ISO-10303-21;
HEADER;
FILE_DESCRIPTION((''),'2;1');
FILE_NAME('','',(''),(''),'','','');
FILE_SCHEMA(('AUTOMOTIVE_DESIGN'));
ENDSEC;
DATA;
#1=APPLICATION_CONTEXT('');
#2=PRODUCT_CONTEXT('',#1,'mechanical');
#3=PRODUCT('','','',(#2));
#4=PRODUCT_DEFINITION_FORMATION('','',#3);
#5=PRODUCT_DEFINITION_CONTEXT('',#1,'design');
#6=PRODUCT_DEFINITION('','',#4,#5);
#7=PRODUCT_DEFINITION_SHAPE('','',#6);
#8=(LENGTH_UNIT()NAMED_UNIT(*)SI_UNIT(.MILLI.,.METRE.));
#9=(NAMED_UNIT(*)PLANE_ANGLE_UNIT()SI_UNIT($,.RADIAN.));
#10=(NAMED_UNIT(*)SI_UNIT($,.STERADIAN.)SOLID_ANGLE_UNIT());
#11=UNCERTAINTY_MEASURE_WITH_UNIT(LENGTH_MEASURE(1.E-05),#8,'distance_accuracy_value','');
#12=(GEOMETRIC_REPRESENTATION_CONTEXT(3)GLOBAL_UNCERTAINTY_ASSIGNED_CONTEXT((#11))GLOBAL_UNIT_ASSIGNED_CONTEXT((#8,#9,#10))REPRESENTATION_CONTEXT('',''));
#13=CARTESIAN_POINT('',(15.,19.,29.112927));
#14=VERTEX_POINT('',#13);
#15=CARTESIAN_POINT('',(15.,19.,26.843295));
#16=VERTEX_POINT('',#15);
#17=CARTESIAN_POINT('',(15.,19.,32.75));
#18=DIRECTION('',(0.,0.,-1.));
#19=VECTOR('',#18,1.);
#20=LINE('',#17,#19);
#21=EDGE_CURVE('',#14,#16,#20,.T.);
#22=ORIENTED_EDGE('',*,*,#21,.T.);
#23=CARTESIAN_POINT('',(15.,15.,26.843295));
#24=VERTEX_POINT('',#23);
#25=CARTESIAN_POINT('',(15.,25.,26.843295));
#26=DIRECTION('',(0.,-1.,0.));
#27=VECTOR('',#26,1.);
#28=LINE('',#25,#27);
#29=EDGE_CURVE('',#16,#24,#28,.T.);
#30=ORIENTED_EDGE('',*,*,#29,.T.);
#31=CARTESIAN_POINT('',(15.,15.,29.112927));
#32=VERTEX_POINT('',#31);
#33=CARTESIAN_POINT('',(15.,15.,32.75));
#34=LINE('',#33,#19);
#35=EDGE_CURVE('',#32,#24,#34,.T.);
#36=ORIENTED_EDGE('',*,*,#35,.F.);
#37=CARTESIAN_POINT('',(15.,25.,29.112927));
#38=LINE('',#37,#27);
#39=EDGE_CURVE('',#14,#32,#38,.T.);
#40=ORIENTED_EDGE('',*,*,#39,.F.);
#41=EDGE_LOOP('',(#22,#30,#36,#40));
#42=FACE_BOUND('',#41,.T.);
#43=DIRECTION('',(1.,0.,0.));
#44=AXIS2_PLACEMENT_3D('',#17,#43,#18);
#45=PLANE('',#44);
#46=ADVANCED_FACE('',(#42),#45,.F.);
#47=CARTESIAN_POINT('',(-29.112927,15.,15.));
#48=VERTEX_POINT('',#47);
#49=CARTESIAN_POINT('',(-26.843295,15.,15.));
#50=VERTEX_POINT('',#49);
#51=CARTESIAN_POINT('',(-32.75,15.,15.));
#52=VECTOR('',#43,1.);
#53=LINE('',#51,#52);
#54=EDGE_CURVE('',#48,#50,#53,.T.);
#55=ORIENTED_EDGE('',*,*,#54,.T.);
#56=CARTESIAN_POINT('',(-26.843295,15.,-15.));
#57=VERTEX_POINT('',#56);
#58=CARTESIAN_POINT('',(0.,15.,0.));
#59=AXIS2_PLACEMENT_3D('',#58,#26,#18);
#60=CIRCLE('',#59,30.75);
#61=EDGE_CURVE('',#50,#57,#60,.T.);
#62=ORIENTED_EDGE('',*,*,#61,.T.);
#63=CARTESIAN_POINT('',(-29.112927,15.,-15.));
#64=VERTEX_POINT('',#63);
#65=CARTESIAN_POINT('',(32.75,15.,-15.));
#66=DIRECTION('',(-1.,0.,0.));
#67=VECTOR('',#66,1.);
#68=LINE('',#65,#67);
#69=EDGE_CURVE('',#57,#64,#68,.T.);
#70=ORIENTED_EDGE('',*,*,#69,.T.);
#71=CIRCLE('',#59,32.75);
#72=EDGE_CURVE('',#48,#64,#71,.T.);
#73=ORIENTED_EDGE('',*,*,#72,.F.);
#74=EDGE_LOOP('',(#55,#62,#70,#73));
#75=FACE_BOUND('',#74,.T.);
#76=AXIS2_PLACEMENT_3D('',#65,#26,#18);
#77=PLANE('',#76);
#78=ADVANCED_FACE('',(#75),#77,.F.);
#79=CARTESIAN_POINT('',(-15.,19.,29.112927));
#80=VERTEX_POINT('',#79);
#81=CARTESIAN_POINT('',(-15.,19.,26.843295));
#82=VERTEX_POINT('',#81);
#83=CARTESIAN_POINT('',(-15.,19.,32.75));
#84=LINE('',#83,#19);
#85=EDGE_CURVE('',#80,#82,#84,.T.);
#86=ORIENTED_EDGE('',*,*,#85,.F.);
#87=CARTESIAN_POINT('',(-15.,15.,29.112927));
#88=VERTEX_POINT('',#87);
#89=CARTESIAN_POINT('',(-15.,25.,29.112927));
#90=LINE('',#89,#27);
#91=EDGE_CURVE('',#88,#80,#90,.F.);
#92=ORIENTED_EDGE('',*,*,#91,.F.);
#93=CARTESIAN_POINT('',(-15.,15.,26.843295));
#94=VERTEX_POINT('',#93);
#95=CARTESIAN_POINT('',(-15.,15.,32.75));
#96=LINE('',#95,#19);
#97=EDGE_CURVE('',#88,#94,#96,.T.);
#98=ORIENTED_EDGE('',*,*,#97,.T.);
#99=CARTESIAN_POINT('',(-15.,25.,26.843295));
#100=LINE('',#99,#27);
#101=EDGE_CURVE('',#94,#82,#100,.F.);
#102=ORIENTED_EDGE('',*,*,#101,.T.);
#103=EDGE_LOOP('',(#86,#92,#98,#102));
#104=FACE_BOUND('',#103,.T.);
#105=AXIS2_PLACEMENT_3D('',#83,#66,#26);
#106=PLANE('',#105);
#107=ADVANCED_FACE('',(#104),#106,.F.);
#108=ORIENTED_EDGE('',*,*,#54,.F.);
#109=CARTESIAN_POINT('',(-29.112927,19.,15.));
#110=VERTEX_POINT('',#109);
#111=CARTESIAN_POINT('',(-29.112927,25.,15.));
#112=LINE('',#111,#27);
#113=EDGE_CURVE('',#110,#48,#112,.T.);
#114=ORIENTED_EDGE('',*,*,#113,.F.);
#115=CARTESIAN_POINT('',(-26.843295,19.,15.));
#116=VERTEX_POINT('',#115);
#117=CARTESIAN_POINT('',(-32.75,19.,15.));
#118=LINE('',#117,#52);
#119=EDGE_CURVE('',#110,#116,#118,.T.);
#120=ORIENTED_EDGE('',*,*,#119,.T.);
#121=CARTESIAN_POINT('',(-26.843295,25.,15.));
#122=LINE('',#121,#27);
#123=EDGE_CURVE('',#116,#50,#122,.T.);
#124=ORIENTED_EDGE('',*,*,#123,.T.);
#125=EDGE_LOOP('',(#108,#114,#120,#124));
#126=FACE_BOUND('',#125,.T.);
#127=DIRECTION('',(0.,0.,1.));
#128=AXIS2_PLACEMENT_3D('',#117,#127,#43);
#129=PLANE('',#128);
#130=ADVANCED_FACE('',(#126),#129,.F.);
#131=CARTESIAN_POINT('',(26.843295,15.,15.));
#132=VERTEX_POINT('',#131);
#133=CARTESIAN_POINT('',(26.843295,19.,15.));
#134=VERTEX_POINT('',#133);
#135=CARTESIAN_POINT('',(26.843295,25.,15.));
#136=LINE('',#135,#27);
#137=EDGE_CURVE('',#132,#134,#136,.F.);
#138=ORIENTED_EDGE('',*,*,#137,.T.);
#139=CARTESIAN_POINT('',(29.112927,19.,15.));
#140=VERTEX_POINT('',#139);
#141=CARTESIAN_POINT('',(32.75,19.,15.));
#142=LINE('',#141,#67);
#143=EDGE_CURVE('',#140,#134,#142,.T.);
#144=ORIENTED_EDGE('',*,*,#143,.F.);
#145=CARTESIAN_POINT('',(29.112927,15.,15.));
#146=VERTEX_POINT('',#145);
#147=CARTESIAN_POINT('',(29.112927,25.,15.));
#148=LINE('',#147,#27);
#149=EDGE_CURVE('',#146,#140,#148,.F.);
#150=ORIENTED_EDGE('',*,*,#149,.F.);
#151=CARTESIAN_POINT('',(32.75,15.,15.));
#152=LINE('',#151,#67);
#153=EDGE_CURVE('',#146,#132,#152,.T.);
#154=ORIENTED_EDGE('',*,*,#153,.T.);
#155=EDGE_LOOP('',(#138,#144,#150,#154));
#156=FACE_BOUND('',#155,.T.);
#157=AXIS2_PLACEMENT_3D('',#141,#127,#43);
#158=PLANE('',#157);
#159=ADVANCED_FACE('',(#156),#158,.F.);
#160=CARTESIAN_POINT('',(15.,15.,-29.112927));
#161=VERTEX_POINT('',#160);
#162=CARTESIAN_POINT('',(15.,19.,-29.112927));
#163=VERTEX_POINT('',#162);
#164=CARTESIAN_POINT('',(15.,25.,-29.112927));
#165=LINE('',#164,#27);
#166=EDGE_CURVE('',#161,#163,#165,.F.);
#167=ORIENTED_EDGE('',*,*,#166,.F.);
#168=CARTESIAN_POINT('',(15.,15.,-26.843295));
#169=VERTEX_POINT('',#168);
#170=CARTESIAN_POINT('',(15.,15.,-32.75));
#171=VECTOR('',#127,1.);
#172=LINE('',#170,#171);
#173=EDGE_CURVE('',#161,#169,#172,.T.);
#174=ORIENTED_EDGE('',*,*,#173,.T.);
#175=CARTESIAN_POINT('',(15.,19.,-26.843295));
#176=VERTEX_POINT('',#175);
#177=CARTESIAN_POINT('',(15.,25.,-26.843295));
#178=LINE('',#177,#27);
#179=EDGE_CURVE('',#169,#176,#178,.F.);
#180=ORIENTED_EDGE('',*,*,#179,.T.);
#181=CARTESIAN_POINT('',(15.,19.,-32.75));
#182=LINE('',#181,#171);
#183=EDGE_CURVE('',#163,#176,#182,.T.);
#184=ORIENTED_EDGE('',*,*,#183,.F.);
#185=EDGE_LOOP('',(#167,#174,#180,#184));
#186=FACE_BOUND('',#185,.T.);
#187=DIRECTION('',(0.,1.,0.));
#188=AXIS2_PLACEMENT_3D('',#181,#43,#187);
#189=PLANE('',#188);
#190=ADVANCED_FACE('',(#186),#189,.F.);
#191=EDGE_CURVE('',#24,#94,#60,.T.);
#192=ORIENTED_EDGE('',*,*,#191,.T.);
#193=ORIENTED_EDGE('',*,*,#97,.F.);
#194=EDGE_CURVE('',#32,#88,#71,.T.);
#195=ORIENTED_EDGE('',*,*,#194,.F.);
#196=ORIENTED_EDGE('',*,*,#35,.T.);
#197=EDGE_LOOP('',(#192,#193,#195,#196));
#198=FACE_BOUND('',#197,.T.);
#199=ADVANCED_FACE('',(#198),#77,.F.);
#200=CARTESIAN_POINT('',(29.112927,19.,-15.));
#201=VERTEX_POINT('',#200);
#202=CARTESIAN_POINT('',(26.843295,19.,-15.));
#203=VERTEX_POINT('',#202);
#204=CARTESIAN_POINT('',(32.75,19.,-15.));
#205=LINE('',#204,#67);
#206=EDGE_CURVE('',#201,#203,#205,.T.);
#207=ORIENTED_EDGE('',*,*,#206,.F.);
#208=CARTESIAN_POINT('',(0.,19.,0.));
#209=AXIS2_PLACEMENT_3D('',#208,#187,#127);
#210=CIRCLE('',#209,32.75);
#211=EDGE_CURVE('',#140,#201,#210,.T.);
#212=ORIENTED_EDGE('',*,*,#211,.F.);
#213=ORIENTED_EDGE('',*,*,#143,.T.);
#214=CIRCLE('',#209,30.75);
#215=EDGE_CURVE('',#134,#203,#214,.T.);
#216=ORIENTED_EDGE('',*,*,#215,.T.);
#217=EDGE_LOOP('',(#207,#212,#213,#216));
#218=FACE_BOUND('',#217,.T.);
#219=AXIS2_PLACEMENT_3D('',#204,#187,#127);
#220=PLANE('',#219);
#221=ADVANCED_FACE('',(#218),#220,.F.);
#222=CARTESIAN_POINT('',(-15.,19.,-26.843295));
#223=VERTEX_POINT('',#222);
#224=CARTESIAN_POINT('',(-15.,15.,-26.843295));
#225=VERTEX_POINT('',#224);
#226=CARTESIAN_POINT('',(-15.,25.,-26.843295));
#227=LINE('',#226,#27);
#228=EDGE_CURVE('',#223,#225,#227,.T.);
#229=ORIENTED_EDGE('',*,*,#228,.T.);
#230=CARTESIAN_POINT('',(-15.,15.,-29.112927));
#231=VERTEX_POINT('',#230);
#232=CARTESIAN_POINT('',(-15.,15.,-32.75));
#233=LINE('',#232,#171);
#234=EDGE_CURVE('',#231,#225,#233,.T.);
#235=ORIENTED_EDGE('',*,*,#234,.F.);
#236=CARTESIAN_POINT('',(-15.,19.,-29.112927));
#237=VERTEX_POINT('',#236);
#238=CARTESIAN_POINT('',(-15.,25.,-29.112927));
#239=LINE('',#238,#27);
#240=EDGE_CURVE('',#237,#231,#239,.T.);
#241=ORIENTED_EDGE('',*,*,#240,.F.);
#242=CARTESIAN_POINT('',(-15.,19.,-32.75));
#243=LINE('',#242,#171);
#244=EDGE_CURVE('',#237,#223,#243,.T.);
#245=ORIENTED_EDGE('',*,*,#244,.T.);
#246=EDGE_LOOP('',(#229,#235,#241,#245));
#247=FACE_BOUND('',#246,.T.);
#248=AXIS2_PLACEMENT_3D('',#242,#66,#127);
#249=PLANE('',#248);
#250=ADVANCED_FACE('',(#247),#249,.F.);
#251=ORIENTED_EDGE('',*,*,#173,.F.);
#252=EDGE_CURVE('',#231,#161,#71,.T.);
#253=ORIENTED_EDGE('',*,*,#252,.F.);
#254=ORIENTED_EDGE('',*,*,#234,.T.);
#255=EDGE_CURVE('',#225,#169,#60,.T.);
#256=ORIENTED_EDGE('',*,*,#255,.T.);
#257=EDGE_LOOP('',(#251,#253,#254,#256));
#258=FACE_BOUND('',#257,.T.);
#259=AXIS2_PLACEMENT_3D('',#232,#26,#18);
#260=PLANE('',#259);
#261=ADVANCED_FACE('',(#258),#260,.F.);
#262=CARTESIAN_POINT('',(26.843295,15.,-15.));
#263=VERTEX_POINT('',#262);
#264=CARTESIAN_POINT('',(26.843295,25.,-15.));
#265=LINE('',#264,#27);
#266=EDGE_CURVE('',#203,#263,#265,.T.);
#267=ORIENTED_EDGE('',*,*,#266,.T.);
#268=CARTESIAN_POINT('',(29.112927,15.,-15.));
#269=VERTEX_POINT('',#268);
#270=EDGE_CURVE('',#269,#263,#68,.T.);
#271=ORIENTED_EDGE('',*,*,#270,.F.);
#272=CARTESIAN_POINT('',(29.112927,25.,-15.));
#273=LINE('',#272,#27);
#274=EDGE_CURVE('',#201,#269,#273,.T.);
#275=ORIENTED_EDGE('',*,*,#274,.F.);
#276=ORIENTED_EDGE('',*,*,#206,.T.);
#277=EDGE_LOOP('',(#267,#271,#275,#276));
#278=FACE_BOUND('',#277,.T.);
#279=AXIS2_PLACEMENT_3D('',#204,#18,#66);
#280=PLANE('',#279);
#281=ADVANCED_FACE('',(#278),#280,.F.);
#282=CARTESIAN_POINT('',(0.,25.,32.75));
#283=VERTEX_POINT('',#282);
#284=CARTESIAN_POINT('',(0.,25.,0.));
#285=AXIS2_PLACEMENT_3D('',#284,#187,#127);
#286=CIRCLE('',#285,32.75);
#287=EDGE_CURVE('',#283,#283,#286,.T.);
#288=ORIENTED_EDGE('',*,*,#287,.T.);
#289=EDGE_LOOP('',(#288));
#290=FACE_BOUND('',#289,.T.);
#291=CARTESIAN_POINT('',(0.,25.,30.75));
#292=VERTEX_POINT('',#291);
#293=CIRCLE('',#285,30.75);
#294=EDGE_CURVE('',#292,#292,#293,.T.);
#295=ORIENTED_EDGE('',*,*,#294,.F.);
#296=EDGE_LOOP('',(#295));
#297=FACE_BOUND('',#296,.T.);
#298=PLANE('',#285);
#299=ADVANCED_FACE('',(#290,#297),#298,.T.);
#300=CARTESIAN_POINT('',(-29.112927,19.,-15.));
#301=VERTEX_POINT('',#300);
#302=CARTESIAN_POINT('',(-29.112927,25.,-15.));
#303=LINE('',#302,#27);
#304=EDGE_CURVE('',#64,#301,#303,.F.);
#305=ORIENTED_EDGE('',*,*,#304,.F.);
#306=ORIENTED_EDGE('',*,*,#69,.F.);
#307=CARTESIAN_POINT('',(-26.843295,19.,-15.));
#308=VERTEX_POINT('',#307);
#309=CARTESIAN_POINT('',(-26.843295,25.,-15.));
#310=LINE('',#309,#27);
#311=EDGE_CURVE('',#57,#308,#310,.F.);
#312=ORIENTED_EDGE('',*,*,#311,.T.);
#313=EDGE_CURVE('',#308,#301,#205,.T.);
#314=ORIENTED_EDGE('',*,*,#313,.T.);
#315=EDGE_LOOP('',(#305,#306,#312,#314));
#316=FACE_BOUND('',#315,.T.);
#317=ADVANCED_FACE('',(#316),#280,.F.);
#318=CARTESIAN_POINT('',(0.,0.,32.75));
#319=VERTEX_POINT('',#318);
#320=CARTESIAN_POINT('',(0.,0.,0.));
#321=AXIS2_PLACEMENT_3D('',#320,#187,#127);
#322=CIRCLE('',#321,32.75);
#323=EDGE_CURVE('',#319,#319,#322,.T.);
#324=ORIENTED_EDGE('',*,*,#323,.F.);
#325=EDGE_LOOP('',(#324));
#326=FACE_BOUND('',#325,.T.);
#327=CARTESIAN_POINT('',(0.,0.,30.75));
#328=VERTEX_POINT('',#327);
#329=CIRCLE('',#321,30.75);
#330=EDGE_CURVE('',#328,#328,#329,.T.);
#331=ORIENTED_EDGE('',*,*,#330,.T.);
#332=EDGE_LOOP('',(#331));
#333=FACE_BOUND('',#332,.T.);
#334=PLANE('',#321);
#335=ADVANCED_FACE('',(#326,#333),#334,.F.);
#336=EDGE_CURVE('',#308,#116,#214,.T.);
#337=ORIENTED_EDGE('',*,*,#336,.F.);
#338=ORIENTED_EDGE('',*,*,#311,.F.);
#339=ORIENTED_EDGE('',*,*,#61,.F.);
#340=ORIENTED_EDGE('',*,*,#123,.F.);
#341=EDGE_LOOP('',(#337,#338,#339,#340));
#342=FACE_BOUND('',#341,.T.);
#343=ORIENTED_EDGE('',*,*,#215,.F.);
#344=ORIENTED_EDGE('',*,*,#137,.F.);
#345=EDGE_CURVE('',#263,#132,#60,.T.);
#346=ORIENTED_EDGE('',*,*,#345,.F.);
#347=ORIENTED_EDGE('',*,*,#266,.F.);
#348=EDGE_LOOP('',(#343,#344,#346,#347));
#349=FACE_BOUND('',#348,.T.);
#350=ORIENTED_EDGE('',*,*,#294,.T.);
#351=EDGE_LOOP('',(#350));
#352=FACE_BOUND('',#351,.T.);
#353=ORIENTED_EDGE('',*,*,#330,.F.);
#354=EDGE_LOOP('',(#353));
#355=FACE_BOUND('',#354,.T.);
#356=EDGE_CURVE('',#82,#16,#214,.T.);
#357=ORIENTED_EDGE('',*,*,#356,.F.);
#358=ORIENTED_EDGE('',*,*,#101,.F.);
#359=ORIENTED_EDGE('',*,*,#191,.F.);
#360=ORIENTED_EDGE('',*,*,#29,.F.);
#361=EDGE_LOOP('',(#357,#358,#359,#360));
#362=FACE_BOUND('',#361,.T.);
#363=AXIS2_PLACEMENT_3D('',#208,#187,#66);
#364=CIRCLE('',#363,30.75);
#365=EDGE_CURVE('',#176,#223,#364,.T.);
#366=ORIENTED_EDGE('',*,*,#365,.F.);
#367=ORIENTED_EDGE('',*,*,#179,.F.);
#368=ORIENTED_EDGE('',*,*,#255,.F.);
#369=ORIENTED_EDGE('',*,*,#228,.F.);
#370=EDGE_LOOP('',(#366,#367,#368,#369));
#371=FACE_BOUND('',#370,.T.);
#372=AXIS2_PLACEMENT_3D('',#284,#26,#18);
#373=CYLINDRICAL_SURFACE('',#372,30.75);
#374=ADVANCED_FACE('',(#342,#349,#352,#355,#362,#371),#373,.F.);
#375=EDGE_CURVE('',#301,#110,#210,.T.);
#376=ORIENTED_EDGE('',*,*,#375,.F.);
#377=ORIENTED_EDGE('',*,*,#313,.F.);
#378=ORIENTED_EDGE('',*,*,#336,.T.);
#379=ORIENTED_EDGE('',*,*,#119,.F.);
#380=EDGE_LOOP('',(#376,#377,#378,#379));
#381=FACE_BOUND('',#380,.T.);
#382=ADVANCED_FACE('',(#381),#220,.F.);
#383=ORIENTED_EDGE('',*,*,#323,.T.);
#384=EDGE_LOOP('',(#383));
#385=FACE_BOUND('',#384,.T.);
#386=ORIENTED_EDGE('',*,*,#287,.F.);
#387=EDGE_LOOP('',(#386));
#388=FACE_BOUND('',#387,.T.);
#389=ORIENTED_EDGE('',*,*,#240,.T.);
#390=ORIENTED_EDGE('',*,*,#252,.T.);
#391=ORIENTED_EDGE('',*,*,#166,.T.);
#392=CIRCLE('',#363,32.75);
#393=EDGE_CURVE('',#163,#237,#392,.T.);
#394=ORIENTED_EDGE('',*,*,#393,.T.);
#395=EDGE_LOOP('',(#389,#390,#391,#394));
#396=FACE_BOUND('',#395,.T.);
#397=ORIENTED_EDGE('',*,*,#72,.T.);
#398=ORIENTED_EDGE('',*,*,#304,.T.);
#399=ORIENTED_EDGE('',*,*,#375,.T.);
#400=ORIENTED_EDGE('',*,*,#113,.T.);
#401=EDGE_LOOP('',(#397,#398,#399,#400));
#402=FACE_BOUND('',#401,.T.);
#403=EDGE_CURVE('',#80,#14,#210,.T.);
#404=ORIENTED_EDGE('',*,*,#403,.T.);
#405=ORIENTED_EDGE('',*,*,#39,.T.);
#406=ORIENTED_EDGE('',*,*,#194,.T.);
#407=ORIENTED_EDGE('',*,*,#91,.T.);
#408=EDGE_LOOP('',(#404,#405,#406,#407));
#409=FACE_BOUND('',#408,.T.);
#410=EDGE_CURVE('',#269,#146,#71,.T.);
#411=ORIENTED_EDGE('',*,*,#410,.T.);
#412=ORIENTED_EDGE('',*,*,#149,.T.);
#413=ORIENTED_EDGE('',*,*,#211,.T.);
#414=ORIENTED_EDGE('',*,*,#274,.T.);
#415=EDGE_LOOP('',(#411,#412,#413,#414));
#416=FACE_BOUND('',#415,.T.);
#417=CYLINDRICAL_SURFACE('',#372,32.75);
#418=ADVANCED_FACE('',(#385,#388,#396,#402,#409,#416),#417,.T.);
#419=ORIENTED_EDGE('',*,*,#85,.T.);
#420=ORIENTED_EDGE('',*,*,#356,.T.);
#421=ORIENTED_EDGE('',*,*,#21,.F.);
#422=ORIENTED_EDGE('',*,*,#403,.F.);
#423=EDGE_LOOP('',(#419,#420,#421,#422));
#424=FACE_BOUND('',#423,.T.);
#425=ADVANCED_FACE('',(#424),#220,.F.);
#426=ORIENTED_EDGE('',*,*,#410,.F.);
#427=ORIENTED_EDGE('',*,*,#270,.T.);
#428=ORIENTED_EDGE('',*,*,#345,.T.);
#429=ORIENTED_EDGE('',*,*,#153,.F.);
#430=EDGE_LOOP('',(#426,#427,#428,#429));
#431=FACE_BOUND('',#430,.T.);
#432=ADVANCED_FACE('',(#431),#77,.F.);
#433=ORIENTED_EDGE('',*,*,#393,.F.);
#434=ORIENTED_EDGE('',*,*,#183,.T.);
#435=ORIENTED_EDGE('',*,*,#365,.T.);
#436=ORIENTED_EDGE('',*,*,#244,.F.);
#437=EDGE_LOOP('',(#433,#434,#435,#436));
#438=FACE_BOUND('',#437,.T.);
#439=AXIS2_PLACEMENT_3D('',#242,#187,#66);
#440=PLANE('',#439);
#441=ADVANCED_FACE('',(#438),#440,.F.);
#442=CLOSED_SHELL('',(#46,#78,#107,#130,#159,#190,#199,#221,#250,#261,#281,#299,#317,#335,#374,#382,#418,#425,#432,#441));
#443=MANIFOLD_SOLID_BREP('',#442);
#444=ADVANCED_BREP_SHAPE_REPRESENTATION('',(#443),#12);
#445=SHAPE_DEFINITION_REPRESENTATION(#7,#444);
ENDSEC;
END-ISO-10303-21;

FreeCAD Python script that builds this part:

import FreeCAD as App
import Part
import Sketcher
Q = App.Units.Quantity

doc = App.newDocument("Part")
body = doc.addObject("PartDesign::Body", "Body")

# Sketch on XZ plane
sketch1 = body.newObject("Sketcher::SketchObject", "Sketch")
sketch1.AttachmentSupport = (doc.getObject("XZ_Plane"), [""])
sketch1.MapMode = "FlatFace"
sketch1.addGeometry([
    Part.Circle(App.Vector(0, 0, 0), App.Vector(0, 0, 1), 32.75),
    Part.Circle(App.Vector(0, 0, 0), App.Vector(0, 0, 1), 30.75),
], False)
sketch1.addConstraint([
    Sketcher.Constraint("Coincident", 0, 3, -1, 1),
    Sketcher.Constraint("Coincident", 1, 3, -1, 1),
    Sketcher.Constraint("Diameter", 0, Q("65.5 mm")),
    Sketcher.Constraint("Diameter", 1, Q("61.5 mm")),
])
pad1 = body.newObject("PartDesign::Pad", "Pad")
pad1.Profile = sketch1
pad1.Length = 25
pad1.Reversed = True

# Sketch on XY plane
sketch2 = body.newObject("Sketcher::SketchObject", "Sketch001")
sketch2.AttachmentSupport = (doc.getObject("XY_Plane"), [""])
sketch2.MapMode = "FlatFace"
sketch2.addGeometry([
    Part.LineSegment(App.Vector(-15, 19, 0), App.Vector(-15, 15, 0)),
    Part.LineSegment(App.Vector(-15, 15, 0), App.Vector(15, 15, 0)),
    Part.LineSegment(App.Vector(15, 15, 0), App.Vector(15, 19, 0)),
    Part.LineSegment(App.Vector(15, 19, 0), App.Vector(-15, 19, 0)),
], False)
sketch2.addConstraint([
    Sketcher.Constraint("Coincident", 0, 2, 1, 1),
    Sketcher.Constraint("Coincident", 1, 2, 2, 1),
    Sketcher.Constraint("Coincident", 2, 2, 3, 1),
    Sketcher.Constraint("Coincident", 3, 2, 0, 1),
    Sketcher.Constraint("Vertical", 0),
    Sketcher.Constraint("Horizontal", 1),
    Sketcher.Constraint("Vertical", 2),
    Sketcher.Constraint("Horizontal", 3),
    Sketcher.Constraint("DistanceX", 1, 1, 1, 2, Q("30 mm")),
    Sketcher.Constraint("DistanceY", 0, 2, 0, 1, Q("4 mm")),
    Sketcher.Constraint("DistanceX", 0, 2, -1, 1, Q("15 mm")),
    Sketcher.Constraint("DistanceY", -1, 1, 0, 2, Q("15 mm")),
])
pocket1 = body.newObject("PartDesign::Pocket", "Pocket")
pocket1.Profile = sketch2
pocket1.Type = "ThroughAll"
doc.recompute()

polarpattern = body.newObject("PartDesign::PolarPattern", "PolarPattern")
polarpattern.Originals = [pocket1]
polarpattern.Axis = (doc.getObject("Y_Axis"), [""])
polarpattern.Angle = 360
polarpattern.Occurrences = 4
body.Tip = polarpattern

doc.recompute()
